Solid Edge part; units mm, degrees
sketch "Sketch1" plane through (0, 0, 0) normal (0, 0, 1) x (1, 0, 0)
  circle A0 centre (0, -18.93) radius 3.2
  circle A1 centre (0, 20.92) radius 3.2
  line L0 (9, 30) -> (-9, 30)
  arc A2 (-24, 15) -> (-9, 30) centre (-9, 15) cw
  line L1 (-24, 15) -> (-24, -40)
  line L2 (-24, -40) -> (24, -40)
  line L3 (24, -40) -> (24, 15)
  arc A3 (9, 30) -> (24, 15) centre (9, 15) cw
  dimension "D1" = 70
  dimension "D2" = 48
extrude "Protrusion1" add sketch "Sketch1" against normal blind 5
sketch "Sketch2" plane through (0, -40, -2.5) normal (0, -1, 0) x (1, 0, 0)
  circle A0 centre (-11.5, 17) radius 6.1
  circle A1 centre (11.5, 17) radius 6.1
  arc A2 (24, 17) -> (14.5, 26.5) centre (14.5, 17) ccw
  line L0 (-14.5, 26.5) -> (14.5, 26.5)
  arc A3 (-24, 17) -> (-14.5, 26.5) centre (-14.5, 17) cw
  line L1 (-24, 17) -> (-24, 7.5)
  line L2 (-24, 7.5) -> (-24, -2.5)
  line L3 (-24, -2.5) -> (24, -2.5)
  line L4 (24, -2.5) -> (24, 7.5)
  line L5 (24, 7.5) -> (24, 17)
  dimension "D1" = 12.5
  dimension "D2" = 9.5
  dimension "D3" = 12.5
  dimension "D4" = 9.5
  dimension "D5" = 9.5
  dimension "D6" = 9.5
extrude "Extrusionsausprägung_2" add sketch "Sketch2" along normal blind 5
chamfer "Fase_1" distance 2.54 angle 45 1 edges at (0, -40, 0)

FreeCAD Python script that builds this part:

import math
import FreeCAD as App
import Part
import Sketcher

V = App.Vector
Q = App.Units.Quantity


def edges_at(feature, points):
    """Names of the edges that pass closest to the given points."""
    edges = feature.Shape.Edges
    near = lambda p: min(range(len(edges)), key=lambda i: edges[i].distToShape(Part.Vertex(*p))[0])
    return sorted({f"Edge{near(p) + 1}" for p in points})

doc = App.newDocument("Part")
body = doc.addObject("PartDesign::Body", "Body")

# Sketch on XY plane
sketch1 = body.newObject("Sketcher::SketchObject", "Sketch")
sketch1.AttachmentSupport = (doc.getObject("XY_Plane"), [""])
sketch1.MapMode = "FlatFace"
sketch1.addGeometry([
    Part.ArcOfCircle(Part.Circle(V(9, 15, 0), V(0, 0, 1), 15), math.radians(0), math.radians(90)),  # 0
    Part.LineSegment(V(9, 30, 0), V(-9, 30, 0)),  # 1
    Part.ArcOfCircle(Part.Circle(V(-9, 15, 0), V(0, 0, 1), 15), math.radians(90), math.radians(180)),  # 2
    Part.LineSegment(V(-24, 15, 0), V(-24, -40, 0)),  # 3
    Part.LineSegment(V(-24, -40, 0), V(24, -40, 0)),  # 4
    Part.LineSegment(V(24, -40, 0), V(24, 15, 0)),  # 5
    Part.Circle(V(0, -18.9, 0), V(0, 0, 1), 3.2),  # 6
    Part.Circle(V(0, 20.9, 0), V(0, 0, 1), 3.2),  # 7
], False)
sketch1.addConstraint([
    Sketcher.Constraint("Tangent", 0, 2, 1, 1),
    Sketcher.Constraint("Tangent", 1, 2, 2, 1),
    Sketcher.Constraint("Tangent", 2, 2, 3, 1),
    Sketcher.Constraint("Coincident", 3, 2, 4, 1),
    Sketcher.Constraint("Coincident", 4, 2, 5, 1),
    Sketcher.Constraint("Tangent", 5, 2, 0, 1),
    Sketcher.Constraint("Horizontal", 1),
    Sketcher.Constraint("Vertical", 3),
    Sketcher.Constraint("Horizontal", 4),
    Sketcher.Constraint("Vertical", 5),
    Sketcher.Constraint("Equal", 0, 2),
    Sketcher.Constraint("Equal", 6, 7),
    Sketcher.Constraint("PointOnObject", 6, 3, -2),
    Sketcher.Constraint("PointOnObject", 7, 3, -2),
    Sketcher.Constraint("Radius", 0, Q("15 mm")),
    Sketcher.Constraint("Diameter", 6, Q("6.4 mm")),
    Sketcher.Constraint("DistanceX", 1, 2, 1, 1, Q("18 mm")),
    Sketcher.Constraint("DistanceY", 3, 2, 3, 1, Q("55 mm")),
    Sketcher.Constraint("DistanceX", -1, 1, 0, 3, Q("9 mm")),
    Sketcher.Constraint("DistanceY", -1, 1, 0, 3, Q("15 mm")),
    Sketcher.Constraint("DistanceY", 6, 3, -1, 1, Q("18.93 mm")),
    Sketcher.Constraint("DistanceY", -1, 1, 7, 3, Q("20.92 mm")),
])
pad1 = body.newObject("PartDesign::Pad", "Pad")
pad1.Profile = sketch1
pad1.Length = 5
pad1.Reversed = True

# Sketch on XZ plane
sketch2 = body.newObject("Sketcher::SketchObject", "Sketch001")
sketch2.AttachmentSupport = (doc.getObject("XZ_Plane"), [""])
sketch2.MapMode = "FlatFace"
sketch2.AttachmentOffset = App.Placement(V(0, 0, 40), App.Rotation())
sketch2.addGeometry([
    Part.LineSegment(V(24, -5, 0), V(24, 14, 0)),  # 0
    Part.ArcOfCircle(Part.Circle(V(14, 14, 0), V(0, 0, 1), 10), math.radians(0), math.radians(90)),  # 1
    Part.LineSegment(V(14, 24, 0), V(-14, 24, 0)),  # 2
    Part.ArcOfCircle(Part.Circle(V(-14, 14, 0), V(0, 0, 1), 10), math.radians(90), math.radians(180)),  # 3
    Part.LineSegment(V(-24, 14, 0), V(-24, -5, 0)),  # 4
    Part.LineSegment(V(-24, -5, 0), V(24, -5, 0)),  # 5
    Part.Circle(V(-12, 14, 0), V(0, 0, 1), 6),  # 6
    Part.Circle(V(12, 14, 0), V(0, 0, 1), 6),  # 7
], False)
sketch2.addConstraint([
    Sketcher.Constraint("Tangent", 0, 2, 1, 1),
    Sketcher.Constraint("Tangent", 1, 2, 2, 1),
    Sketcher.Constraint("Tangent", 2, 2, 3, 1),
    Sketcher.Constraint("Tangent", 3, 2, 4, 1),
    Sketcher.Constraint("Coincident", 4, 2, 5, 1),
    Sketcher.Constraint("Coincident", 5, 2, 0, 1),
    Sketcher.Constraint("Vertical", 0),
    Sketcher.Constraint("Horizontal", 2),
    Sketcher.Constraint("Vertical", 4),
    Sketcher.Constraint("Horizontal", 5),
    Sketcher.Constraint("Equal", 1, 3),
    Sketcher.Constraint("Equal", 6, 7),
    Sketcher.Constraint("Symmetric", 6, 3, 7, 3, -2),
    Sketcher.Constraint("Horizontal", 3, 3, 6, 3),
    Sketcher.Constraint("Diameter", 6, Q("12.2 mm")),
    Sketcher.Constraint("Radius", 1, Q("9.5 mm")),
    Sketcher.Constraint("DistanceX", 2, 2, 2, 1, Q("29 mm")),
    Sketcher.Constraint("DistanceY", 0, 1, 0, 2, Q("19.5 mm")),
    Sketcher.Constraint("DistanceX", -1, 1, 0, 2, Q("24 mm")),
    Sketcher.Constraint("DistanceY", -1, 1, 1, 2, Q("24 mm")),
    Sketcher.Constraint("DistanceX", 3, 3, 6, 3, Q("3 mm")),
])
pad2 = body.newObject("PartDesign::Pad", "Pad001")
pad2.Profile = sketch2
pad2.Length = 5
doc.recompute()

chamfer = body.newObject("PartDesign::Chamfer", "Chamfer")
chamfer.Base = (pad2, edges_at(pad2, [(0, -40, 0)]))
chamfer.Size = 2.54

doc.recompute()
